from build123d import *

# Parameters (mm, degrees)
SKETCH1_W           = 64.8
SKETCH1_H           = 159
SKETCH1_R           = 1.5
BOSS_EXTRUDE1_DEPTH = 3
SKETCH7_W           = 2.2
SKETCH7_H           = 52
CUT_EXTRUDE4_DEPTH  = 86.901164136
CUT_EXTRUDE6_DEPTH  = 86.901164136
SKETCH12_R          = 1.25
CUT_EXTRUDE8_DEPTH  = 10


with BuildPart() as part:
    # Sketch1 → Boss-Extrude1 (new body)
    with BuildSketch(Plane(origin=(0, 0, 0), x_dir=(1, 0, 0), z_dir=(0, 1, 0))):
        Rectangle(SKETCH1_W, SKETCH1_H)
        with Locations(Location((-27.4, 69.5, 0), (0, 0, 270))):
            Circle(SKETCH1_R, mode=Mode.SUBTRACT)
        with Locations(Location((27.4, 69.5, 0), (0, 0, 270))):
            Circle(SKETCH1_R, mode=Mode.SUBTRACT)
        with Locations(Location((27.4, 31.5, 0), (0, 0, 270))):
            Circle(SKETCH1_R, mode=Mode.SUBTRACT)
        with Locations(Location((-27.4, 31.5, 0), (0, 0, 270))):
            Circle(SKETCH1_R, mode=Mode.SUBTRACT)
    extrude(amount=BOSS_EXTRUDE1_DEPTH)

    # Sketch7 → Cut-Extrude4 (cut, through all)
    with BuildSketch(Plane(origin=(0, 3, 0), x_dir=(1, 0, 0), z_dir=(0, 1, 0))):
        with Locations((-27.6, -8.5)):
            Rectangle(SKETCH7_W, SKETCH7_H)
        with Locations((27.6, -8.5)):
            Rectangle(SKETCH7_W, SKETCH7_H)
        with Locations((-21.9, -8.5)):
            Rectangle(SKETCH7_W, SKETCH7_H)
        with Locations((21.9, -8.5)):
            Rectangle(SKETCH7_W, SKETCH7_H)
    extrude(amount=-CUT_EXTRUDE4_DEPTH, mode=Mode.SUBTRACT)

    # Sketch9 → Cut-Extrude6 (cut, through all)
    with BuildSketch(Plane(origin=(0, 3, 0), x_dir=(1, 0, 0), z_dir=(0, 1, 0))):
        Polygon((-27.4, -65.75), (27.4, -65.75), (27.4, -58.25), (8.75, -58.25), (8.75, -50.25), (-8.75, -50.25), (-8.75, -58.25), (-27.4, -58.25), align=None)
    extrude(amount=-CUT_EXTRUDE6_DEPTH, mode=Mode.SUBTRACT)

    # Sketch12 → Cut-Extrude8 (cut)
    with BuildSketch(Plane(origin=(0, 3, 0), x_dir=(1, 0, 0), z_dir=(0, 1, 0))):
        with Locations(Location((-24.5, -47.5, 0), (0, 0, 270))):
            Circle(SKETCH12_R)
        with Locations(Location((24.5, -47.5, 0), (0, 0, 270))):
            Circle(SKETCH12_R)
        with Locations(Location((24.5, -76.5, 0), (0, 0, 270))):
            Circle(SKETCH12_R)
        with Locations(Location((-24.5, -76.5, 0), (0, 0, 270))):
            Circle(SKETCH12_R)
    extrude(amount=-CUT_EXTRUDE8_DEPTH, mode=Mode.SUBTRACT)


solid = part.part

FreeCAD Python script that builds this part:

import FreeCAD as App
import Part
import Sketcher

V = App.Vector
Q = App.Units.Quantity

doc = App.newDocument("Part")
params = doc.addObject("Spreadsheet::Sheet", "Params")
for row, (alias, value) in enumerate([
    ("sketch1_diameter", "3 mm"),
    ("sketch1_height", "159 mm"),
    ("sketch1_width", "64.8 mm"),
    ("pad1_length", "3 mm"),
    ("sketch2_height", "52 mm"),
    ("sketch2_width", "2.2 mm"),
    ("sketch3_height", "8 mm"),
    ("sketch3_width", "54.8 mm"),
    ("sketch3_width2", "17.5 mm"),
    ("sketch3_height2", "7.5 mm"),
    ("sketch4_diameter", "2.5 mm"),
    ("pocket3_length", "10 mm"),
], start=1):
    params.set(f"A{row}", alias)
    params.set(f"B{row}", "=" + value)
    params.setAlias(f"B{row}", alias)

body = doc.addObject("PartDesign::Body", "Body")

sketch1 = body.newObject("Sketcher::SketchObject", "Sketch")
sketch1.AttachmentSupport = (doc.getObject("XZ_Plane"), [""])
sketch1.MapMode = "FlatFace"
sketch1.addGeometry([
    Part.LineSegment(V(-32.4, -79.5, 0), V(-32.4, 79.5, 0)),
    Part.LineSegment(V(-32.4, 79.5, 0), V(32.4, 79.5, 0)),
    Part.LineSegment(V(32.4, 79.5, 0), V(32.4, -79.5, 0)),
    Part.LineSegment(V(32.4, -79.5, 0), V(-32.4, -79.5, 0)),
    Part.Circle(V(-27.4, -31.5, 0), V(0, 0, 1), 1.5),
    Part.Circle(V(27.4, -31.5, 0), V(0, 0, 1), 1.5),
    Part.Circle(V(-27.4, -69.5, 0), V(0, 0, 1), 1.5),
    Part.Circle(V(27.4, -69.5, 0), V(0, 0, 1), 1.5),
], False)
sketch1.addConstraint([
    Sketcher.Constraint("Coincident", 0, 2, 1, 1),
    Sketcher.Constraint("Coincident", 1, 2, 2, 1),
    Sketcher.Constraint("Coincident", 2, 2, 3, 1),
    Sketcher.Constraint("Coincident", 3, 2, 0, 1),
    Sketcher.Constraint("Vertical", 0),
    Sketcher.Constraint("Horizontal", 1),
    Sketcher.Constraint("Vertical", 2),
    Sketcher.Constraint("Horizontal", 3),
    Sketcher.Constraint("Equal", 4, 5),
    Sketcher.Constraint("Equal", 5, 6),
    Sketcher.Constraint("Equal", 6, 7),
    Sketcher.Constraint("Symmetric", 0, 2, 2, 2, -1, 1),
    Sketcher.Constraint("Symmetric", 4, 3, 5, 3, -2),
    Sketcher.Constraint("Symmetric", 6, 3, 7, 3, -2),
    Sketcher.Constraint("Vertical", 4, 3, 6, 3),
    Sketcher.Constraint("Diameter", 4, Q("3 mm")),
    Sketcher.Constraint("DistanceY", 0, 1, 0, 2, Q("159 mm")),
    Sketcher.Constraint("DistanceX", 1, 1, 1, 2, Q("64.8 mm")),
    Sketcher.Constraint("DistanceY", 6, 3, 4, 3, Q("38 mm")),
    Sketcher.Constraint("DistanceX", 0, 2, 4, 3, Q("5 mm")),
    Sketcher.Constraint("DistanceY", 4, 3, 0, 2, Q("111 mm")),
])
sketch1.setExpression("Constraints[15]", "Params.sketch1_diameter")
sketch1.setExpression("Constraints[16]", "Params.sketch1_height")
sketch1.setExpression("Constraints[17]", "Params.sketch1_width")
pad1 = body.newObject("PartDesign::Pad", "Pad")
pad1.Profile = sketch1
pad1.setExpression("Length", "Params.pad1_length")
pad1.Reversed = True

sketch2 = body.newObject("Sketcher::SketchObject", "Sketch001")
sketch2.AttachmentSupport = (doc.getObject("XZ_Plane"), [""])
sketch2.MapMode = "FlatFace"
sketch2.AttachmentOffset = App.Placement(V(0, 0, -3), App.Rotation())
sketch2.addGeometry([
    Part.LineSegment(V(-28.7, -17.5, 0), V(-28.7, 34.5, 0)),
    Part.LineSegment(V(-28.7, 34.5, 0), V(-26.5, 34.5, 0)),
    Part.LineSegment(V(-26.5, 34.5, 0), V(-26.5, -17.5, 0)),
    Part.LineSegment(V(-26.5, -17.5, 0), V(-28.7, -17.5, 0)),
    Part.LineSegment(V(26.5, -17.5, 0), V(26.5, 34.5, 0)),
    Part.LineSegment(V(26.5, 34.5, 0), V(28.7, 34.5, 0)),
    Part.LineSegment(V(28.7, 34.5, 0), V(28.7, -17.5, 0)),
    Part.LineSegment(V(28.7, -17.5, 0), V(26.5, -17.5, 0)),
    Part.LineSegment(V(-23, -17.5, 0), V(-23, 34.5, 0)),
    Part.LineSegment(V(-23, 34.5, 0), V(-20.8, 34.5, 0)),
    Part.LineSegment(V(-20.8, 34.5, 0), V(-20.8, -17.5, 0)),
    Part.LineSegment(V(-20.8, -17.5, 0), V(-23, -17.5, 0)),
    Part.LineSegment(V(20.8, -17.5, 0), V(20.8, 34.5, 0)),
    Part.LineSegment(V(20.8, 34.5, 0), V(23, 34.5, 0)),
    Part.LineSegment(V(23, 34.5, 0), V(23, -17.5, 0)),
    Part.LineSegment(V(23, -17.5, 0), V(20.8, -17.5, 0)),
], False)
sketch2.addConstraint([
    Sketcher.Constraint("Coincident", 0, 2, 1, 1),
    Sketcher.Constraint("Coincident", 1, 2, 2, 1),
    Sketcher.Constraint("Coincident", 2, 2, 3, 1),
    Sketcher.Constraint("Coincident", 3, 2, 0, 1),
    Sketcher.Constraint("Coincident", 4, 2, 5, 1),
    Sketcher.Constraint("Coincident", 5, 2, 6, 1),
    Sketcher.Constraint("Coincident", 6, 2, 7, 1),
    Sketcher.Constraint("Coincident", 7, 2, 4, 1),
    Sketcher.Constraint("Coincident", 8, 2, 9, 1),
    Sketcher.Constraint("Coincident", 9, 2, 10, 1),
    Sketcher.Constraint("Coincident", 10, 2, 11, 1),
    Sketcher.Constraint("Coincident", 11, 2, 8, 1),
    Sketcher.Constraint("Coincident", 12, 2, 13, 1),
    Sketcher.Constraint("Coincident", 13, 2, 14, 1),
    Sketcher.Constraint("Coincident", 14, 2, 15, 1),
    Sketcher.Constraint("Coincident", 15, 2, 12, 1),
    Sketcher.Constraint("Vertical", 0),
    Sketcher.Constraint("Horizontal", 1),
    Sketcher.Constraint("Vertical", 2),
    Sketcher.Constraint("Horizontal", 3),
    Sketcher.Constraint("Vertical", 4),
    Sketcher.Constraint("Horizontal", 5),
    Sketcher.Constraint("Vertical", 6),
    Sketcher.Constraint("Horizontal", 7),
    Sketcher.Constraint("Vertical", 8),
    Sketcher.Constraint("Horizontal", 9),
    Sketcher.Constraint("Vertical", 10),
    Sketcher.Constraint("Horizontal", 11),
    Sketcher.Constraint("Vertical", 12),
    Sketcher.Constraint("Horizontal", 13),
    Sketcher.Constraint("Vertical", 14),
    Sketcher.Constraint("Horizontal", 15),
    Sketcher.Constraint("Symmetric", 1, 2, 4, 2, -2),
    Sketcher.Constraint("Symmetric", 3, 2, 6, 2, -2),
    Sketcher.Constraint("Symmetric", 9, 2, 12, 2, -2),
    Sketcher.Constraint("Symmetric", 11, 2, 14, 2, -2),
    Sketcher.Constraint("Horizontal", 5, 2, 8, 2),
    Sketcher.Constraint("Horizontal", 7, 2, 10, 2),
    Sketcher.Constraint("Equal", 7, 9),
    Sketcher.Constraint("DistanceY", 0, 1, 0, 2, Q("52 mm")),
    Sketcher.Constraint("DistanceX", 1, 1, 1, 2, Q("2.2 mm")),
    Sketcher.Constraint("DistanceX", 8, 2, -1, 1, Q("23 mm")),
    Sketcher.Constraint("DistanceX", 1, 2, 4, 2, Q("53 mm")),
    Sketcher.Constraint("DistanceY", -1, 1, 0, 2, Q("34.5 mm")),
])
sketch2.setExpression("Constraints[39]", "Params.sketch2_height")
sketch2.setExpression("Constraints[40]", "Params.sketch2_width")
pocket1 = body.newObject("PartDesign::Pocket", "Pocket")
pocket1.Profile = sketch2
pocket1.Type = "ThroughAll"
pocket1.Reversed = True

sketch3 = body.newObject("Sketcher::SketchObject", "Sketch002")
sketch3.AttachmentSupport = (doc.getObject("XZ_Plane"), [""])
sketch3.MapMode = "FlatFace"
sketch3.AttachmentOffset = App.Placement(V(0, 0, -3), App.Rotation())
sketch3.addGeometry([
    Part.LineSegment(V(-27, 66, 0), V(27, 66, 0)),
    Part.LineSegment(V(27, 66, 0), V(27, 58, 0)),
    Part.LineSegment(V(27, 58, 0), V(9, 58, 0)),
    Part.LineSegment(V(9, 58, 0), V(9, 50, 0)),
    Part.LineSegment(V(9, 50, 0), V(-9, 50, 0)),
    Part.LineSegment(V(-9, 50, 0), V(-9, 58, 0)),
    Part.LineSegment(V(-9, 58, 0), V(-27, 58, 0)),
    Part.LineSegment(V(-27, 58, 0), V(-27, 66, 0)),
], False)
sketch3.addConstraint([
    Sketcher.Constraint("Coincident", 0, 2, 1, 1),
    Sketcher.Constraint("Coincident", 1, 2, 2, 1),
    Sketcher.Constraint("Coincident", 2, 2, 3, 1),
    Sketcher.Constraint("Coincident", 3, 2, 4, 1),
    Sketcher.Constraint("Coincident", 4, 2, 5, 1),
    Sketcher.Constraint("Coincident", 5, 2, 6, 1),
    Sketcher.Constraint("Coincident", 6, 2, 7, 1),
    Sketcher.Constraint("Coincident", 7, 2, 0, 1),
    Sketcher.Constraint("Horizontal", 0),
    Sketcher.Constraint("Vertical", 1),
    Sketcher.Constraint("Horizontal", 2),
    Sketcher.Constraint("Vertical", 3),
    Sketcher.Constraint("Horizontal", 4),
    Sketcher.Constraint("Vertical", 5),
    Sketcher.Constraint("Horizontal", 6),
    Sketcher.Constraint("Vertical", 7),
    Sketcher.Constraint("Symmetric", 2, 2, 5, 2, -2),
    Sketcher.Constraint("Equal", 2, 6),
    Sketcher.Constraint("DistanceY", 3, 2, 3, 1, Q("8 mm")),
    Sketcher.Constraint("DistanceX", 0, 1, 0, 2, Q("54.8 mm")),
    Sketcher.Constraint("DistanceX", 4, 2, 4, 1, Q("17.5 mm")),
    Sketcher.Constraint("DistanceY", 1, 2, 1, 1, Q("7.5 mm")),
    Sketcher.Constraint("DistanceY", -1, 1, 0, 2, Q("65.75 mm")),
])
sketch3.setExpression("Constraints[18]", "Params.sketch3_height")
sketch3.setExpression("Constraints[19]", "Params.sketch3_width")
sketch3.setExpression("Constraints[20]", "Params.sketch3_width2")
sketch3.setExpression("Constraints[21]", "Params.sketch3_height2")
pocket2 = body.newObject("PartDesign::Pocket", "Pocket001")
pocket2.Profile = sketch3
pocket2.Type = "ThroughAll"
pocket2.Reversed = True

sketch4 = body.newObject("Sketcher::SketchObject", "Sketch003")
sketch4.AttachmentSupport = (doc.getObject("XZ_Plane"), [""])
sketch4.MapMode = "FlatFace"
sketch4.AttachmentOffset = App.Placement(V(0, 0, -3), App.Rotation())
sketch4.addGeometry([
    Part.Circle(V(-24.5, 47.5, 0), V(0, 0, 1), 1.2),
    Part.Circle(V(24.5, 47.5, 0), V(0, 0, 1), 1.2),
    Part.Circle(V(24.5, 76.5, 0), V(0, 0, 1), 1.2),
    Part.Circle(V(-24.5, 76.5, 0), V(0, 0, 1), 1.2),
], False)
sketch4.addConstraint([
    Sketcher.Constraint("Equal", 0, 1),
    Sketcher.Constraint("Equal", 1, 2),
    Sketcher.Constraint("Equal", 2, 3),
    Sketcher.Constraint("Symmetric", 0, 3, 1, 3, -2),
    Sketcher.Constraint("Symmetric", 2, 3, 3, 3, -2),
    Sketcher.Constraint("Vertical", 1, 3, 2, 3),
    Sketcher.Constraint("Diameter", 0, Q("2.5 mm")),
    Sketcher.Constraint("DistanceX", 0, 3, 1, 3, Q("49 mm")),
    Sketcher.Constraint("DistanceY", 1, 3, 2, 3, Q("29 mm")),
    Sketcher.Constraint("DistanceY", -1, 1, 0, 3, Q("47.5 mm")),
])
sketch4.setExpression("Constraints[6]", "Params.sketch4_diameter")
pocket3 = body.newObject("PartDesign::Pocket", "Pocket002")
pocket3.Profile = sketch4
pocket3.setExpression("Length", "Params.pocket3_length")
pocket3.Reversed = True

doc.recompute()
